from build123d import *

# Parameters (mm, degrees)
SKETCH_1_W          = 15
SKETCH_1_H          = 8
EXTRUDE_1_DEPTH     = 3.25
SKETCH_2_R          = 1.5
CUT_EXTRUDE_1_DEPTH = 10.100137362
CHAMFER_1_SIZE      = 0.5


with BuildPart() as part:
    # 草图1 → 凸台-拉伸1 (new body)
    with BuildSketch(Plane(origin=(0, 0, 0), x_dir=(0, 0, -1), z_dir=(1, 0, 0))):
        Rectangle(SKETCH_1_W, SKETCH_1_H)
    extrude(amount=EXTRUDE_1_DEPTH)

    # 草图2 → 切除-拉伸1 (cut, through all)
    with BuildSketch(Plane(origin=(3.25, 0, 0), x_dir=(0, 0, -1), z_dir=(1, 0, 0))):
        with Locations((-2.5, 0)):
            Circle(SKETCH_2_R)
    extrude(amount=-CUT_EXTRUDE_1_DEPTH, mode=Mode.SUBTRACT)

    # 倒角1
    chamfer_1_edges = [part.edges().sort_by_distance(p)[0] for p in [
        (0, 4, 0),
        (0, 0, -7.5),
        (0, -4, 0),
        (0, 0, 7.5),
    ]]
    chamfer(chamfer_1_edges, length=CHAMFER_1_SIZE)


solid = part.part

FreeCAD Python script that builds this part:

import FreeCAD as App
import Part
import Sketcher
from FreeCAD import Vector


def edges_at(feature, points):
    """Names of the edges that pass closest to the given points."""
    edges = feature.Shape.Edges
    near = lambda p: min(range(len(edges)), key=lambda i: edges[i].distToShape(Part.Vertex(*p))[0])
    return sorted({f"Edge{near(p) + 1}" for p in points})

doc = App.newDocument("Part")
body = doc.addObject("PartDesign::Body", "Body")

# Sketch on YZ plane
sketch1 = doc.addObject("Sketcher::SketchObject", "Sketch")
body.addObject(sketch1)
sketch1.AttachmentSupport = (doc.YZ_Plane, [""])
sketch1.MapMode = "FlatFace"
sketch1.addGeometry([
    Part.LineSegment(Vector(4, 8, 0), Vector(-4, 8, 0)),
    Part.LineSegment(Vector(-4, 8, 0), Vector(-4, -8, 0)),
    Part.LineSegment(Vector(-4, -8, 0), Vector(4, -8, 0)),
    Part.LineSegment(Vector(4, -8, 0), Vector(4, 8, 0)),
], False)
sketch1.addConstraint([
    Sketcher.Constraint("Coincident", 0, 2, 1, 1),
    Sketcher.Constraint("Coincident", 1, 2, 2, 1),
    Sketcher.Constraint("Coincident", 2, 2, 3, 1),
    Sketcher.Constraint("Coincident", 3, 2, 0, 1),
    Sketcher.Constraint("Horizontal", 0),
    Sketcher.Constraint("Vertical", 1),
    Sketcher.Constraint("Horizontal", 2),
    Sketcher.Constraint("Vertical", 3),
    Sketcher.Constraint("Symmetric", 0, 2, 2, 2, -1, 1),
    Sketcher.Constraint("DistanceX", 0, 2, 0, 1, 8.0),
    Sketcher.Constraint("DistanceY", 1, 2, 1, 1, 15.0),
])
pad1 = doc.addObject("PartDesign::Pad", "Pad")
body.addObject(pad1)
pad1.Profile = sketch1
pad1.Length = 3.25

# Sketch on YZ plane
sketch2 = doc.addObject("Sketcher::SketchObject", "Sketch001")
body.addObject(sketch2)
sketch2.AttachmentSupport = (doc.YZ_Plane, [""])
sketch2.MapMode = "FlatFace"
sketch2.AttachmentOffset = App.Placement(Vector(0, 0, 3.25), App.Rotation())
sketch2.addGeometry(Part.Circle(Vector(0, 2.5, 0), Vector(0, 0, 1), 1.5), False)
sketch2.addConstraint([
    Sketcher.Constraint("PointOnObject", 0, 3, -2),
    Sketcher.Constraint("Diameter", 0, 3.0),
    Sketcher.Constraint("DistanceY", -1, 1, 0, 3, 2.5),
])
pocket1 = doc.addObject("PartDesign::Pocket", "Pocket")
body.addObject(pocket1)
pocket1.Profile = sketch2
pocket1.Type = "ThroughAll"
doc.recompute()

chamfer = doc.addObject("PartDesign::Chamfer", "Chamfer")
body.addObject(chamfer)
chamfer.Base = (pocket1, edges_at(pocket1, [
    (0, 4, 0),
    (0, 0, -7.5),
    (0, -4, 0),
    (0, 0, 7.5),
]))
chamfer.Size = 0.5

doc.recompute()
